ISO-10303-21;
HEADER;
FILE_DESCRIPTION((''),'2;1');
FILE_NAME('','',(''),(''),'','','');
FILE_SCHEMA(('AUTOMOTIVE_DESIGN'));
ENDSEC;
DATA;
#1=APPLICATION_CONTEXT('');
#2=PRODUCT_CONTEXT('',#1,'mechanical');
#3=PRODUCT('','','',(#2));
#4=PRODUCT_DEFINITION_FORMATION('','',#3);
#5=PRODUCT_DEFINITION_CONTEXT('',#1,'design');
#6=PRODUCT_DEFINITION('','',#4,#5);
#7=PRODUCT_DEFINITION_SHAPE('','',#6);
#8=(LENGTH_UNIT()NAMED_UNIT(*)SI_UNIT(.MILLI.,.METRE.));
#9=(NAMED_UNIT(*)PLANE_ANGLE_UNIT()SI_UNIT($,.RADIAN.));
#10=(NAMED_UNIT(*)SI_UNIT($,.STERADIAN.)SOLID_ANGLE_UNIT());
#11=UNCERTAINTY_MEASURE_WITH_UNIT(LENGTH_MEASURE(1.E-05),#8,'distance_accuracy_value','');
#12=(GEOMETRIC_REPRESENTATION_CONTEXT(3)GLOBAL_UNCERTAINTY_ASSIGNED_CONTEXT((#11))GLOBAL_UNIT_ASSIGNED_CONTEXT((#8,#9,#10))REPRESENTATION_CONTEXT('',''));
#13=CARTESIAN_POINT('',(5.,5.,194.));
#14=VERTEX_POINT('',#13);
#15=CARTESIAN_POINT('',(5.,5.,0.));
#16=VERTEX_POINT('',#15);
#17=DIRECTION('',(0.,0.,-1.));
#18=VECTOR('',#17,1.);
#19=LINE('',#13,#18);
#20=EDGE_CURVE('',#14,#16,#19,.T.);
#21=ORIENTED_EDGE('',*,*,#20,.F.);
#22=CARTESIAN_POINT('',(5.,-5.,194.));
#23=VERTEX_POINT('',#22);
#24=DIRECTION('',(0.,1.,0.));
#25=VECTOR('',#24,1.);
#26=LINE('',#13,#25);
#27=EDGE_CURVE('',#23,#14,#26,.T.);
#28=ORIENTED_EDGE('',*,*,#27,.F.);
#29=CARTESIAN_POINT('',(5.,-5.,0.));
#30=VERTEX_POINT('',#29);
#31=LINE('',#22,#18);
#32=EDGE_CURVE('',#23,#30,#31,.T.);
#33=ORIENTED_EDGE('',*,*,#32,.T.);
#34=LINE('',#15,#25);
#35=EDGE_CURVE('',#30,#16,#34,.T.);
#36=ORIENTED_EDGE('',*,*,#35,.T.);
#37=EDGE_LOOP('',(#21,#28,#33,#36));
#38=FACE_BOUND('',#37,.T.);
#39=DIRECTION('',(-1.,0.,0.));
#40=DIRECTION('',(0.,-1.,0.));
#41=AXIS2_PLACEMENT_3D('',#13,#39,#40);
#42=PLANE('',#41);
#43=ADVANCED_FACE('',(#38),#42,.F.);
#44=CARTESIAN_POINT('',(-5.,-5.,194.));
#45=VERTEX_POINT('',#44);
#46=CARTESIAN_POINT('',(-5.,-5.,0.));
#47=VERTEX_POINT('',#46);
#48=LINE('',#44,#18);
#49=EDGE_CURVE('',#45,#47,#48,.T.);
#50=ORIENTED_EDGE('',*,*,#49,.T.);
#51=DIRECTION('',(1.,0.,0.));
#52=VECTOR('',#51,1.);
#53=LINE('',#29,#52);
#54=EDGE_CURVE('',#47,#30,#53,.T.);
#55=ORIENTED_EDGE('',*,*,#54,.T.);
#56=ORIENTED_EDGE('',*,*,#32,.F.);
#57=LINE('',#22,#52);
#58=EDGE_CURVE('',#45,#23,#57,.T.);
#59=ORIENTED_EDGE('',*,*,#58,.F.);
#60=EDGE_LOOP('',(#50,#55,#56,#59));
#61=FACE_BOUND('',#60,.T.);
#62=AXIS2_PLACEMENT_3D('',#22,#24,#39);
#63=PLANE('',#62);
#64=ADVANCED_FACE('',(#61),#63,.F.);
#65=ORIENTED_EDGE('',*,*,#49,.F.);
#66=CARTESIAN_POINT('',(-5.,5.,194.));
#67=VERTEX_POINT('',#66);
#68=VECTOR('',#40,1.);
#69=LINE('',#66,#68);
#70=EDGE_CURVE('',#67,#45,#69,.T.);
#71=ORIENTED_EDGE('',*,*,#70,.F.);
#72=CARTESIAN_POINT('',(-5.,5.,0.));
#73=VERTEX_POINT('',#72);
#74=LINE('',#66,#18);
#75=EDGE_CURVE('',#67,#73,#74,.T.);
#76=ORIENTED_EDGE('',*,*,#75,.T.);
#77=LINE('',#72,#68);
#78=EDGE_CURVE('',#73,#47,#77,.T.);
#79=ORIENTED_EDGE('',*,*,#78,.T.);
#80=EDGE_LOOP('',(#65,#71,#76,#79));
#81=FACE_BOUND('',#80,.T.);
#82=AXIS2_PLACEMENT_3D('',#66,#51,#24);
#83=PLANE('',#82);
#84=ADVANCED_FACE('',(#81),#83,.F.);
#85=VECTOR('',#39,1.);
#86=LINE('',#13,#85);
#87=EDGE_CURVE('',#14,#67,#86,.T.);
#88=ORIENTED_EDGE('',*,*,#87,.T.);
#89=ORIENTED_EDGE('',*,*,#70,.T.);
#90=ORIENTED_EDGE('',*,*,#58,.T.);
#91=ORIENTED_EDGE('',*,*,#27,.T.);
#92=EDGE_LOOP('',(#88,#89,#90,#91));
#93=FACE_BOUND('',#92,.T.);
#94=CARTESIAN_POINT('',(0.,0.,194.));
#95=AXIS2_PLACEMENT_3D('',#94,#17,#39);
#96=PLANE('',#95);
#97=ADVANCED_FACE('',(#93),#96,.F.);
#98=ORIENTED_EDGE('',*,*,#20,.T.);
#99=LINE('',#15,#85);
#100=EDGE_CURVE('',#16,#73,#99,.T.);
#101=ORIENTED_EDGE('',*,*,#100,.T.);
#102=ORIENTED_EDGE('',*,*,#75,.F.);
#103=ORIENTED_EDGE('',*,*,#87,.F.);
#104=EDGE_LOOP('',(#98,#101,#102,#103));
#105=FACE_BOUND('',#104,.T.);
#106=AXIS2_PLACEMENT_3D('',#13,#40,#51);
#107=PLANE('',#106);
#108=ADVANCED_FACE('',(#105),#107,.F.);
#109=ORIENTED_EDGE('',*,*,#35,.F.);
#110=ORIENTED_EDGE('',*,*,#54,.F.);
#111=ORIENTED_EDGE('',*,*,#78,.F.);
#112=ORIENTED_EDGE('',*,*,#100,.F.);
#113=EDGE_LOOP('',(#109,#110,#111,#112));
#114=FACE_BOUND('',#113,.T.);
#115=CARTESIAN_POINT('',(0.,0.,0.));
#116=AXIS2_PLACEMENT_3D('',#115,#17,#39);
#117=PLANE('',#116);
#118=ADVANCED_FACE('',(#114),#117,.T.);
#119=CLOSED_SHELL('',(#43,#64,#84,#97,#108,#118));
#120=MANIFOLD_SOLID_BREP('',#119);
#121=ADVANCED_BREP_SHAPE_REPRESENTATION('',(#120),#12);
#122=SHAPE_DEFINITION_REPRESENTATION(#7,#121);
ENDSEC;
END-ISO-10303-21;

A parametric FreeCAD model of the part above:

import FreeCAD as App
import Part
import Sketcher

V = App.Vector
Q = App.Units.Quantity

doc = App.newDocument("Part")
body = doc.addObject("PartDesign::Body", "Body")

# Sketch on XY plane
sketch1 = body.newObject("Sketcher::SketchObject", "Sketch")
sketch1.AttachmentSupport = (doc.getObject("XY_Plane"), [""])
sketch1.MapMode = "FlatFace"
sketch1.addGeometry([
    Part.LineSegment(V(-5, 5, 0), V(-5, -5, 0)),
    Part.LineSegment(V(-5, -5, 0), V(5, -5, 0)),
    Part.LineSegment(V(5, -5, 0), V(5, 5, 0)),
    Part.LineSegment(V(5, 5, 0), V(-5, 5, 0)),
], False)
sketch1.addConstraint([
    Sketcher.Constraint("Coincident", 0, 2, 1, 1),
    Sketcher.Constraint("Coincident", 1, 2, 2, 1),
    Sketcher.Constraint("Coincident", 2, 2, 3, 1),
    Sketcher.Constraint("Coincident", 3, 2, 0, 1),
    Sketcher.Constraint("Vertical", 0),
    Sketcher.Constraint("Horizontal", 1),
    Sketcher.Constraint("Vertical", 2),
    Sketcher.Constraint("Horizontal", 3),
    Sketcher.Constraint("Symmetric", 0, 2, 2, 2, -1, 1),
    Sketcher.Constraint("Equal", 3, 0),
    Sketcher.Constraint("DistanceX", 1, 1, 1, 2, Q("10 mm")),
])
pad1 = body.newObject("PartDesign::Pad", "Pad")
pad1.Profile = sketch1
pad1.Length = 194

doc.recompute()
